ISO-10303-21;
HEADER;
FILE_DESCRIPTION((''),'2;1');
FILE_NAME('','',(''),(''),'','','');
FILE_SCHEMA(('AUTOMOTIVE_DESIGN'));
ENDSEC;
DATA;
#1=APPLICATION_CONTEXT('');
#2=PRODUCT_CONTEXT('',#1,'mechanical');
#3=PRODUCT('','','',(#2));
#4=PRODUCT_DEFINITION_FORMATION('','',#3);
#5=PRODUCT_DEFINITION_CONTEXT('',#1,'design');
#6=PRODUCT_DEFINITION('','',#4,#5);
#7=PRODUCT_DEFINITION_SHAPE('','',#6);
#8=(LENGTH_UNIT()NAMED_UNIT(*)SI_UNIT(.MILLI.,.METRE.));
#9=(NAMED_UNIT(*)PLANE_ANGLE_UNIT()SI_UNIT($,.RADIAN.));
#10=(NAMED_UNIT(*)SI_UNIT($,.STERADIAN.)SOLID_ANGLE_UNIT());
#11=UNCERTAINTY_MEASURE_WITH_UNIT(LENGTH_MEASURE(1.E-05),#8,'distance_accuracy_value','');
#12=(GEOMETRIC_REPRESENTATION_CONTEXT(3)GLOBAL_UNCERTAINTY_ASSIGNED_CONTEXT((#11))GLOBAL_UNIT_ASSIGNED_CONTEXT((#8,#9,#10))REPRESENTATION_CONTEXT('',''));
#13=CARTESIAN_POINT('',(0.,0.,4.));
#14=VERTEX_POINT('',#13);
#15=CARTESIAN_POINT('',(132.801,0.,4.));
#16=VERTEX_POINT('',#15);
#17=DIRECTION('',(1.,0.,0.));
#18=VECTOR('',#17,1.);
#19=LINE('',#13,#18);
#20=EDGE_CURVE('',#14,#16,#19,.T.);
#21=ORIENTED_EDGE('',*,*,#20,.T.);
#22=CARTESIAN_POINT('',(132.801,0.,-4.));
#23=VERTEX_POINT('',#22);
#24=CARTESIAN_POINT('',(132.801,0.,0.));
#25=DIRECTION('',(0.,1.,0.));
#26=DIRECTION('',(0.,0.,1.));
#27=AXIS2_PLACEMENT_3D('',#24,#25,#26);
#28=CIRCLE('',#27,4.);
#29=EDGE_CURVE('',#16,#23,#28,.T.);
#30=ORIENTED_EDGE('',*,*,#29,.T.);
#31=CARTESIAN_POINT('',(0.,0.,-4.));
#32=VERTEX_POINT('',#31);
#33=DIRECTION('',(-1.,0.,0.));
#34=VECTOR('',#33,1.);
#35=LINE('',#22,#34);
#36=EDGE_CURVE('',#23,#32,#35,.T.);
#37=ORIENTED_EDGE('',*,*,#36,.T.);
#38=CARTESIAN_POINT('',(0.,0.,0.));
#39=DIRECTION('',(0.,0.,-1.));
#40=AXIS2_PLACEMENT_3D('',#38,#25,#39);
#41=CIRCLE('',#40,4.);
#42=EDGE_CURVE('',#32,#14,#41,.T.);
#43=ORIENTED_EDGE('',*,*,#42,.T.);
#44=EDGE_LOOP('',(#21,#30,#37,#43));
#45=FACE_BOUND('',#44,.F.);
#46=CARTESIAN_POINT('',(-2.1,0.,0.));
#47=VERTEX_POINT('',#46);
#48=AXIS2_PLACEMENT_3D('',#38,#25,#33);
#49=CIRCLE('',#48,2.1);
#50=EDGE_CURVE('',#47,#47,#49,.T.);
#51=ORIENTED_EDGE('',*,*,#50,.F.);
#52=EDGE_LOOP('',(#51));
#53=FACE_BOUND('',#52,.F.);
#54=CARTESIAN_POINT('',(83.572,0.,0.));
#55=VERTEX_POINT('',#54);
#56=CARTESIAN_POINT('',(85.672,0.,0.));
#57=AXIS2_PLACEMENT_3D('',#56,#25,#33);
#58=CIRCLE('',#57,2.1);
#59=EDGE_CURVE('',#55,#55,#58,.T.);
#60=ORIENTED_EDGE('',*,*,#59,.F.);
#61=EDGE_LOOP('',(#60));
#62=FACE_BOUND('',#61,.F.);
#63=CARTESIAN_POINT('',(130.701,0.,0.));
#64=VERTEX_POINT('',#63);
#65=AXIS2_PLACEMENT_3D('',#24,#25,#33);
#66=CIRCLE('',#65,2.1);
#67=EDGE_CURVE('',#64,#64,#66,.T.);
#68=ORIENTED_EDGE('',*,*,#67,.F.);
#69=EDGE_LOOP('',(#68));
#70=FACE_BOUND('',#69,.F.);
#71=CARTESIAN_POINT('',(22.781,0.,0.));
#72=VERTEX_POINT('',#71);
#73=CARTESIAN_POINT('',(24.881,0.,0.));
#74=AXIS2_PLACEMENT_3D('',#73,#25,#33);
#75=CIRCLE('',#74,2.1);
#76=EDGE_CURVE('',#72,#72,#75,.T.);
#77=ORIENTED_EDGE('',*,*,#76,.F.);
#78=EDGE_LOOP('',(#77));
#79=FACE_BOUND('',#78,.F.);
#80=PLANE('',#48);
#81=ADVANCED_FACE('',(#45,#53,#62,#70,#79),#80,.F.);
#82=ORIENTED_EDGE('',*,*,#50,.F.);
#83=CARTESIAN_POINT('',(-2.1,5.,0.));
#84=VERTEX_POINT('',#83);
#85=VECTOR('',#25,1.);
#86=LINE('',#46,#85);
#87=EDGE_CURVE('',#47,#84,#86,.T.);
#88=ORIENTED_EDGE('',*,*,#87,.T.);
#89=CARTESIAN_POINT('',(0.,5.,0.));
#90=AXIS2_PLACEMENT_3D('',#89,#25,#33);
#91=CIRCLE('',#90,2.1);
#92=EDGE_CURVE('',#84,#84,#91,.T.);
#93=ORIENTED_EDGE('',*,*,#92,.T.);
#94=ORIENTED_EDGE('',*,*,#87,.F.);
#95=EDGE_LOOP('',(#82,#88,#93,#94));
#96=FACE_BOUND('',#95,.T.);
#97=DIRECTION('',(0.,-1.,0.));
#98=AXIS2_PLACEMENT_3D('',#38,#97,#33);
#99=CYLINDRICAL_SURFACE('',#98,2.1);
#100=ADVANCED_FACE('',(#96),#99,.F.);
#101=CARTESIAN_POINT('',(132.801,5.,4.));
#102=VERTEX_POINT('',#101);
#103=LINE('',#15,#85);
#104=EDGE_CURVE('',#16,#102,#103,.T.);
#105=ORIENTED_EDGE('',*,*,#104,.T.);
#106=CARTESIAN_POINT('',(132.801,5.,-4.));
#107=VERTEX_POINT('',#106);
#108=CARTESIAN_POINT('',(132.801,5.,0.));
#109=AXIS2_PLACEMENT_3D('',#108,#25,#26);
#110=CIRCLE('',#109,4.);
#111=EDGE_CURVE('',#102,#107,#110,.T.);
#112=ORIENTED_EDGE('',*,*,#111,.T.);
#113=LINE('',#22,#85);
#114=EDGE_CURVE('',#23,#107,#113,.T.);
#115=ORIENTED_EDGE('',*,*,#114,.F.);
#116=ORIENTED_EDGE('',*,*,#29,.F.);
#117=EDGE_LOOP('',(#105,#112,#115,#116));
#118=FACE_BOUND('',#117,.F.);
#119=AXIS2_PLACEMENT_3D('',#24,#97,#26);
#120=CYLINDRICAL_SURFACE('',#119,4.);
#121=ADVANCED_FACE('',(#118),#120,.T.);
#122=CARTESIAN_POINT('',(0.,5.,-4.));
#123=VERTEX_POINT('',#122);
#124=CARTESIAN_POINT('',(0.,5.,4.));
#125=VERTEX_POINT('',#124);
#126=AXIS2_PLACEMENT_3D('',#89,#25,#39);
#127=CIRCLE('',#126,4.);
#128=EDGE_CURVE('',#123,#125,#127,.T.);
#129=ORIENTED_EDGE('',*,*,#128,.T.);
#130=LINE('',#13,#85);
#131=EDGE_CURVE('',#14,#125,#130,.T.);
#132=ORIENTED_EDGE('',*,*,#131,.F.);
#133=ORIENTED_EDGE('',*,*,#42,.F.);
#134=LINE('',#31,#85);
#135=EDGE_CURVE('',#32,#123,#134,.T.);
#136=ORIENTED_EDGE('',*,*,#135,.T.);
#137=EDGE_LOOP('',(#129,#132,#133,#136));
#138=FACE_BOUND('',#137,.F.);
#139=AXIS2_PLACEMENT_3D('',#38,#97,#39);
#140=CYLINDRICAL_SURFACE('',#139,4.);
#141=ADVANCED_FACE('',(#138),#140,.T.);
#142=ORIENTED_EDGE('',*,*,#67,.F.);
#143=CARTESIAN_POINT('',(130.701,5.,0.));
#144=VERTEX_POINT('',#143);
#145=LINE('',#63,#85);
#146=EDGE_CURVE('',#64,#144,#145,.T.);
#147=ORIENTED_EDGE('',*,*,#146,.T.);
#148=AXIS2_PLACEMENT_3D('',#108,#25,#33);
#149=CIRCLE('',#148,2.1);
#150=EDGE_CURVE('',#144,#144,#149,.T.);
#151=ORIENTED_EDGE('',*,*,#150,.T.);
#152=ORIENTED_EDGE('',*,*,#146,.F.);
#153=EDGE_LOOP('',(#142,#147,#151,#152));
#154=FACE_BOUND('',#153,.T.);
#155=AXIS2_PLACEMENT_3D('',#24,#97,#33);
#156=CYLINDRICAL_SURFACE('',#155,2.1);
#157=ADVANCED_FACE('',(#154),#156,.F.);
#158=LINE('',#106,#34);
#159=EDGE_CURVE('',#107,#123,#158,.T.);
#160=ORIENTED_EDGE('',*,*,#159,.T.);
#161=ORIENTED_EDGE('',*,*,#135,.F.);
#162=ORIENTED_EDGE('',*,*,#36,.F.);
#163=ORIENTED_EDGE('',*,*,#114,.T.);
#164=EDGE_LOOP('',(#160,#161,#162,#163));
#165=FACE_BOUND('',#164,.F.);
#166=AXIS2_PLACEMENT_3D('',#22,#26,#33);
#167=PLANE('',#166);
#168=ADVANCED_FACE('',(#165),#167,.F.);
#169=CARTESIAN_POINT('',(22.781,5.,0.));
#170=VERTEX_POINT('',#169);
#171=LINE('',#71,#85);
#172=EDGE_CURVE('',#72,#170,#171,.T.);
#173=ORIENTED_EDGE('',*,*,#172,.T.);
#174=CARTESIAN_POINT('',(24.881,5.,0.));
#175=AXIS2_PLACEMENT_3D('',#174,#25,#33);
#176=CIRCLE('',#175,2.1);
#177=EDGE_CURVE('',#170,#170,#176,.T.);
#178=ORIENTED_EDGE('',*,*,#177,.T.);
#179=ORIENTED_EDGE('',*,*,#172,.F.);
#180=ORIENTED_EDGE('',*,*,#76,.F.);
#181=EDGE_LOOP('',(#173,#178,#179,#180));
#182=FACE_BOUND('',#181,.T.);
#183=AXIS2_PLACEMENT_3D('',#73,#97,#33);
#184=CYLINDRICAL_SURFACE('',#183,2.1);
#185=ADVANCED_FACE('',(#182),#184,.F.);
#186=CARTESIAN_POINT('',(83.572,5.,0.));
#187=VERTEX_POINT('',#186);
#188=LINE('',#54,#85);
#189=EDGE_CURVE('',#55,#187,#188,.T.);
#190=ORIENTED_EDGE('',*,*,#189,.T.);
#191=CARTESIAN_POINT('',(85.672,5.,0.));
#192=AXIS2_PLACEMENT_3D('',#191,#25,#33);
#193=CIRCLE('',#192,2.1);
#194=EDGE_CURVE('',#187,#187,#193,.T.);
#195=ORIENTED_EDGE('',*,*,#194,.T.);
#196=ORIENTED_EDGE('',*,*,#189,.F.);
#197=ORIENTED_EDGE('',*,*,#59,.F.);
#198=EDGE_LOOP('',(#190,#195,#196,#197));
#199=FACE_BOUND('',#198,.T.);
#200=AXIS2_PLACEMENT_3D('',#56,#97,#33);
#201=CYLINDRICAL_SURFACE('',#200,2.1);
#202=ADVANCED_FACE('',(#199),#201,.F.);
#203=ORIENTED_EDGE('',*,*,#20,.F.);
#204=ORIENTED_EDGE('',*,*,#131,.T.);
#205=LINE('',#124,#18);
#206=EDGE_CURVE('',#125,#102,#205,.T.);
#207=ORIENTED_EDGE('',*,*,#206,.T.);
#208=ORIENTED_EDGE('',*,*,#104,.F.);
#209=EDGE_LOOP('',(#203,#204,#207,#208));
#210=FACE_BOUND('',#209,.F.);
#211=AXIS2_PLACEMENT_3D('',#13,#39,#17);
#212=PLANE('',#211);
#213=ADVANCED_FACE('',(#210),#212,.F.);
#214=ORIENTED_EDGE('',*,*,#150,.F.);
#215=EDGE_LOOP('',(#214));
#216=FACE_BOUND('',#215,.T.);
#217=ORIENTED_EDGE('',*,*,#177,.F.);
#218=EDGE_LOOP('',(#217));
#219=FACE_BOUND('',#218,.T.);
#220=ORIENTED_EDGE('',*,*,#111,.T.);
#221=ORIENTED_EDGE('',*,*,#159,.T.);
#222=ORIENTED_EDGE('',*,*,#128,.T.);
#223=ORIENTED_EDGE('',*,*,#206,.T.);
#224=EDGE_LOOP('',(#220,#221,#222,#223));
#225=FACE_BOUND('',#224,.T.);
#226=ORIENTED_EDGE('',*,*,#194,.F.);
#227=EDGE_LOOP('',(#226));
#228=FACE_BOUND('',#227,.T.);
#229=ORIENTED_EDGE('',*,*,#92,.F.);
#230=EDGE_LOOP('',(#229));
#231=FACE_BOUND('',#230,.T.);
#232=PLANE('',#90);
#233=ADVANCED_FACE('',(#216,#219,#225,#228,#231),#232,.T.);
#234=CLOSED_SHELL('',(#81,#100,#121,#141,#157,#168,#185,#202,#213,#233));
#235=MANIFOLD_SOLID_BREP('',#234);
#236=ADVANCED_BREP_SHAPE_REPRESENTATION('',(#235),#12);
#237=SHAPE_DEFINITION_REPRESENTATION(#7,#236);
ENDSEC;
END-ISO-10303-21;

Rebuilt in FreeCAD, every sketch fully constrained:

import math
import FreeCAD as App
import Part
import Sketcher

V = App.Vector
Q = App.Units.Quantity

doc = App.newDocument("Part")
body = doc.addObject("PartDesign::Body", "Body")

sketch1 = body.newObject("Sketcher::SketchObject", "Sketch")
sketch1.AttachmentSupport = (doc.getObject("XZ_Plane"), [""])
sketch1.MapMode = "FlatFace"
sketch1.addGeometry([
    Part.ArcOfCircle(Part.Circle(V(0, 0, 0), V(0, 0, 1), 4), math.radians(90), math.radians(270)),
    Part.LineSegment(V(0, 4, 0), V(132.8, 4, 0)),
    Part.ArcOfCircle(Part.Circle(V(132.8, 0, 0), V(0, 0, 1), 4), math.radians(-90), math.radians(90)),
    Part.LineSegment(V(132.8, -4, 0), V(0, -4, 0)),
    Part.Circle(V(132.8, 0, 0), V(0, 0, 1), 2.1),
    Part.Circle(V(85.7, 0, 0), V(0, 0, 1), 2.1),
    Part.Circle(V(24.9, 0, 0), V(0, 0, 1), 2.1),
    Part.Circle(V(0, 0, 0), V(0, 0, 1), 2.1),
], False)
sketch1.addConstraint([
    Sketcher.Constraint("Tangent", 0, 1, 1, 1),
    Sketcher.Constraint("Tangent", 1, 2, 2, 2),
    Sketcher.Constraint("Tangent", 2, 1, 3, 1),
    Sketcher.Constraint("Tangent", 3, 2, 0, 2),
    Sketcher.Constraint("Horizontal", 1),
    Sketcher.Constraint("Horizontal", 3),
    Sketcher.Constraint("Coincident", 0, 3, -1, 1),
    Sketcher.Constraint("Coincident", 7, 3, -1, 1),
    Sketcher.Constraint("Coincident", 4, 3, 2, 3),
    Sketcher.Constraint("Equal", 4, 5),
    Sketcher.Constraint("Equal", 5, 6),
    Sketcher.Constraint("Equal", 6, 7),
    Sketcher.Constraint("PointOnObject", 5, 3, -1),
    Sketcher.Constraint("PointOnObject", 6, 3, -1),
    Sketcher.Constraint("Radius", 0, Q("4 mm")),
    Sketcher.Constraint("Diameter", 4, Q("4.2 mm")),
    Sketcher.Constraint("DistanceX", 1, 1, 1, 2, Q("132.801 mm")),
    Sketcher.Constraint("DistanceX", -1, 1, 5, 3, Q("85.672 mm")),
    Sketcher.Constraint("DistanceX", -1, 1, 6, 3, Q("24.881 mm")),
])
pad1 = body.newObject("PartDesign::Pad", "Pad")
pad1.Profile = sketch1
pad1.Length = 5
pad1.Reversed = True

doc.recompute()
